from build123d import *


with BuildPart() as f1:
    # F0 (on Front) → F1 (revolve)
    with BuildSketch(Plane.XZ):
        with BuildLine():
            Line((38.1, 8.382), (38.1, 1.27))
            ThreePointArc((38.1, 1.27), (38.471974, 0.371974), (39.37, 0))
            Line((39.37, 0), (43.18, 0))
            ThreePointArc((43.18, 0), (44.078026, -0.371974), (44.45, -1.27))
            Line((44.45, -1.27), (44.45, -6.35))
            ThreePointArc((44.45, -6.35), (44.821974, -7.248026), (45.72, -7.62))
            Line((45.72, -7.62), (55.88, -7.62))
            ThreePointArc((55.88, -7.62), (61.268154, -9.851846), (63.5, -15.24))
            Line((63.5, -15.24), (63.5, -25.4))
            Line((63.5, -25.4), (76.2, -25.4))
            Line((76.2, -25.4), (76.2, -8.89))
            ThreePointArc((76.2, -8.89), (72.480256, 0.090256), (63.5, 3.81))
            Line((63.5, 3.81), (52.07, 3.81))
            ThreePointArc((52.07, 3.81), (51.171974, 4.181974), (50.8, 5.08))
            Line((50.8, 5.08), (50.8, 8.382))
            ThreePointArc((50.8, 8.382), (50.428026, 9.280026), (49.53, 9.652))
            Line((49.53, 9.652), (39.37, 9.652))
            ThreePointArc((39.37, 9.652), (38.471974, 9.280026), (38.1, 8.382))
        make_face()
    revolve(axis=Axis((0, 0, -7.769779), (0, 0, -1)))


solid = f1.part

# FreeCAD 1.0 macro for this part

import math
import FreeCAD as App
import Part
import Sketcher
from FreeCAD import Vector
Q = App.Units.Quantity

doc = App.newDocument("Part")
body = doc.addObject("PartDesign::Body", "Body")

# Sketch on XZ plane
sketch1 = body.newObject("Sketcher::SketchObject", "Sketch")
sketch1.AttachmentSupport = (doc.getObject("XZ_Plane"), [""])
sketch1.MapMode = "FlatFace"
sketch1.addGeometry(Part.LineSegment(Vector(38.1, 8.4, 0), Vector(38.1, 1.3, 0)), False)
sketch1.addGeometry(Part.ArcOfCircle(Part.Circle(Vector(39.4, 1.3, 0), Vector(0, 0, 1), 1.3), math.radians(180), math.radians(270)), False)
sketch1.addGeometry(Part.LineSegment(Vector(39.4, 0, 0), Vector(43.2, 0, 0)), False)
sketch1.addGeometry(Part.ArcOfCircle(Part.Circle(Vector(43.2, -1.3, 0), Vector(0, 0, 1), 1.3), math.radians(0), math.radians(90)), False)
sketch1.addGeometry(Part.LineSegment(Vector(44.5, -1.3, 0), Vector(44.5, -6.3, 0)), False)
sketch1.addGeometry(Part.ArcOfCircle(Part.Circle(Vector(45.7, -6.4, 0), Vector(0, 0, 1), 1.3), math.radians(180), math.radians(270)), False)
sketch1.addGeometry(Part.LineSegment(Vector(45.7, -7.6, 0), Vector(55.9, -7.6, 0)), False)
sketch1.addGeometry(Part.ArcOfCircle(Part.Circle(Vector(55.9, -15.2, 0), Vector(0, 0, 1), 7.6), math.radians(0), math.radians(90)), False)
sketch1.addGeometry(Part.LineSegment(Vector(63.5, -15.2, 0), Vector(63.5, -25.4, 0)), False)
sketch1.addGeometry(Part.LineSegment(Vector(63.5, -25.4, 0), Vector(76.2, -25.4, 0)), False)
sketch1.addGeometry(Part.LineSegment(Vector(76.2, -25.4, 0), Vector(76.2, -8.9, 0)), False)
sketch1.addGeometry(Part.ArcOfCircle(Part.Circle(Vector(63.5, -8.9, 0), Vector(0, 0, 1), 12.7), math.radians(0), math.radians(90)), False)
sketch1.addGeometry(Part.LineSegment(Vector(63.5, 3.8, 0), Vector(52.1, 3.8, 0)), False)
sketch1.addGeometry(Part.ArcOfCircle(Part.Circle(Vector(52.1, 5.1, 0), Vector(0, 0, 1), 1.3), math.radians(180), math.radians(270)), False)
sketch1.addGeometry(Part.LineSegment(Vector(50.8, 5.1, 0), Vector(50.8, 8.4, 0)), False)
sketch1.addGeometry(Part.ArcOfCircle(Part.Circle(Vector(49.5, 8.4, 0), Vector(0, 0, 1), 1.3), math.radians(0), math.radians(90)), False)
sketch1.addGeometry(Part.LineSegment(Vector(49.5, 9.7, 0), Vector(39.4, 9.7, 0)), False)
sketch1.addGeometry(Part.ArcOfCircle(Part.Circle(Vector(39.4, 8.4, 0), Vector(0, 0, 1), 1.3), math.radians(90), math.radians(180)), False)
sketch1.addConstraint(Sketcher.Constraint("Tangent", 0, 2, 1, 1))
sketch1.addConstraint(Sketcher.Constraint("Tangent", 1, 2, 2, 1))
sketch1.addConstraint(Sketcher.Constraint("Tangent", 2, 2, 3, 2))
sketch1.addConstraint(Sketcher.Constraint("Tangent", 3, 1, 4, 1))
sketch1.addConstraint(Sketcher.Constraint("Tangent", 4, 2, 5, 1))
sketch1.addConstraint(Sketcher.Constraint("Tangent", 5, 2, 6, 1))
sketch1.addConstraint(Sketcher.Constraint("Tangent", 6, 2, 7, 2))
sketch1.addConstraint(Sketcher.Constraint("Tangent", 7, 1, 8, 1))
sketch1.addConstraint(Sketcher.Constraint("Coincident", 8, 2, 9, 1))
sketch1.addConstraint(Sketcher.Constraint("Coincident", 9, 2, 10, 1))
sketch1.addConstraint(Sketcher.Constraint("Tangent", 10, 2, 11, 1))
sketch1.addConstraint(Sketcher.Constraint("Tangent", 11, 2, 12, 1))
sketch1.addConstraint(Sketcher.Constraint("Tangent", 12, 2, 13, 2))
sketch1.addConstraint(Sketcher.Constraint("Tangent", 13, 1, 14, 1))
sketch1.addConstraint(Sketcher.Constraint("Tangent", 14, 2, 15, 1))
sketch1.addConstraint(Sketcher.Constraint("Tangent", 15, 2, 16, 1))
sketch1.addConstraint(Sketcher.Constraint("Tangent", 16, 2, 17, 1))
sketch1.addConstraint(Sketcher.Constraint("Tangent", 17, 2, 0, 1))
sketch1.addConstraint(Sketcher.Constraint("Vertical", 0))
sketch1.addConstraint(Sketcher.Constraint("Horizontal", 2))
sketch1.addConstraint(Sketcher.Constraint("Vertical", 4))
sketch1.addConstraint(Sketcher.Constraint("Horizontal", 6))
sketch1.addConstraint(Sketcher.Constraint("Vertical", 8))
sketch1.addConstraint(Sketcher.Constraint("Horizontal", 9))
sketch1.addConstraint(Sketcher.Constraint("Vertical", 10))
sketch1.addConstraint(Sketcher.Constraint("Horizontal", 12))
sketch1.addConstraint(Sketcher.Constraint("Vertical", 14))
sketch1.addConstraint(Sketcher.Constraint("Horizontal", 16))
sketch1.addConstraint(Sketcher.Constraint("Equal", 1, 3))
sketch1.addConstraint(Sketcher.Constraint("Equal", 3, 5))
sketch1.addConstraint(Sketcher.Constraint("Equal", 5, 13))
sketch1.addConstraint(Sketcher.Constraint("Equal", 13, 15))
sketch1.addConstraint(Sketcher.Constraint("Equal", 15, 17))
sketch1.addConstraint(Sketcher.Constraint("PointOnObject", 1, 2, -1))
sketch1.addConstraint(Sketcher.Constraint("Vertical", 11, 3, 7, 1))
sketch1.addConstraint(Sketcher.Constraint("Equal", 6, 16))
sketch1.addConstraint(Sketcher.Constraint("Equal", 16, 8))
sketch1.addConstraint(Sketcher.Constraint("Radius", 7, Q("0.3 in")))
sketch1.addConstraint(Sketcher.Constraint("Radius", 11, Q("0.5 in")))
sketch1.addConstraint(Sketcher.Constraint("Radius", 1, Q("0.0499999 in")))
sketch1.addConstraint(Sketcher.Constraint("DistanceX", 6, 1, 6, 2, Q("0.4 in")))
sketch1.addConstraint(Sketcher.Constraint("DistanceY", 4, 2, 4, 1, Q("0.2 in")))
sketch1.addConstraint(Sketcher.Constraint("DistanceX", -1, 1, 9, 2, Q("3 in")))
sketch1.addConstraint(Sketcher.Constraint("DistanceX", -1, 1, 13, 1, Q("2 in")))
sketch1.addConstraint(Sketcher.Constraint("DistanceY", 0, 2, 0, 1, Q("0.28 in")))
sketch1.addConstraint(Sketcher.Constraint("DistanceY", 10, 1, 10, 2, Q("0.65 in")))
revolution = body.newObject("PartDesign::Revolution", "Revolution")
revolution.Profile = sketch1
revolution.ReferenceAxis = (sketch1, ["V_Axis"])
revolution.Angle = 360

doc.recompute()
